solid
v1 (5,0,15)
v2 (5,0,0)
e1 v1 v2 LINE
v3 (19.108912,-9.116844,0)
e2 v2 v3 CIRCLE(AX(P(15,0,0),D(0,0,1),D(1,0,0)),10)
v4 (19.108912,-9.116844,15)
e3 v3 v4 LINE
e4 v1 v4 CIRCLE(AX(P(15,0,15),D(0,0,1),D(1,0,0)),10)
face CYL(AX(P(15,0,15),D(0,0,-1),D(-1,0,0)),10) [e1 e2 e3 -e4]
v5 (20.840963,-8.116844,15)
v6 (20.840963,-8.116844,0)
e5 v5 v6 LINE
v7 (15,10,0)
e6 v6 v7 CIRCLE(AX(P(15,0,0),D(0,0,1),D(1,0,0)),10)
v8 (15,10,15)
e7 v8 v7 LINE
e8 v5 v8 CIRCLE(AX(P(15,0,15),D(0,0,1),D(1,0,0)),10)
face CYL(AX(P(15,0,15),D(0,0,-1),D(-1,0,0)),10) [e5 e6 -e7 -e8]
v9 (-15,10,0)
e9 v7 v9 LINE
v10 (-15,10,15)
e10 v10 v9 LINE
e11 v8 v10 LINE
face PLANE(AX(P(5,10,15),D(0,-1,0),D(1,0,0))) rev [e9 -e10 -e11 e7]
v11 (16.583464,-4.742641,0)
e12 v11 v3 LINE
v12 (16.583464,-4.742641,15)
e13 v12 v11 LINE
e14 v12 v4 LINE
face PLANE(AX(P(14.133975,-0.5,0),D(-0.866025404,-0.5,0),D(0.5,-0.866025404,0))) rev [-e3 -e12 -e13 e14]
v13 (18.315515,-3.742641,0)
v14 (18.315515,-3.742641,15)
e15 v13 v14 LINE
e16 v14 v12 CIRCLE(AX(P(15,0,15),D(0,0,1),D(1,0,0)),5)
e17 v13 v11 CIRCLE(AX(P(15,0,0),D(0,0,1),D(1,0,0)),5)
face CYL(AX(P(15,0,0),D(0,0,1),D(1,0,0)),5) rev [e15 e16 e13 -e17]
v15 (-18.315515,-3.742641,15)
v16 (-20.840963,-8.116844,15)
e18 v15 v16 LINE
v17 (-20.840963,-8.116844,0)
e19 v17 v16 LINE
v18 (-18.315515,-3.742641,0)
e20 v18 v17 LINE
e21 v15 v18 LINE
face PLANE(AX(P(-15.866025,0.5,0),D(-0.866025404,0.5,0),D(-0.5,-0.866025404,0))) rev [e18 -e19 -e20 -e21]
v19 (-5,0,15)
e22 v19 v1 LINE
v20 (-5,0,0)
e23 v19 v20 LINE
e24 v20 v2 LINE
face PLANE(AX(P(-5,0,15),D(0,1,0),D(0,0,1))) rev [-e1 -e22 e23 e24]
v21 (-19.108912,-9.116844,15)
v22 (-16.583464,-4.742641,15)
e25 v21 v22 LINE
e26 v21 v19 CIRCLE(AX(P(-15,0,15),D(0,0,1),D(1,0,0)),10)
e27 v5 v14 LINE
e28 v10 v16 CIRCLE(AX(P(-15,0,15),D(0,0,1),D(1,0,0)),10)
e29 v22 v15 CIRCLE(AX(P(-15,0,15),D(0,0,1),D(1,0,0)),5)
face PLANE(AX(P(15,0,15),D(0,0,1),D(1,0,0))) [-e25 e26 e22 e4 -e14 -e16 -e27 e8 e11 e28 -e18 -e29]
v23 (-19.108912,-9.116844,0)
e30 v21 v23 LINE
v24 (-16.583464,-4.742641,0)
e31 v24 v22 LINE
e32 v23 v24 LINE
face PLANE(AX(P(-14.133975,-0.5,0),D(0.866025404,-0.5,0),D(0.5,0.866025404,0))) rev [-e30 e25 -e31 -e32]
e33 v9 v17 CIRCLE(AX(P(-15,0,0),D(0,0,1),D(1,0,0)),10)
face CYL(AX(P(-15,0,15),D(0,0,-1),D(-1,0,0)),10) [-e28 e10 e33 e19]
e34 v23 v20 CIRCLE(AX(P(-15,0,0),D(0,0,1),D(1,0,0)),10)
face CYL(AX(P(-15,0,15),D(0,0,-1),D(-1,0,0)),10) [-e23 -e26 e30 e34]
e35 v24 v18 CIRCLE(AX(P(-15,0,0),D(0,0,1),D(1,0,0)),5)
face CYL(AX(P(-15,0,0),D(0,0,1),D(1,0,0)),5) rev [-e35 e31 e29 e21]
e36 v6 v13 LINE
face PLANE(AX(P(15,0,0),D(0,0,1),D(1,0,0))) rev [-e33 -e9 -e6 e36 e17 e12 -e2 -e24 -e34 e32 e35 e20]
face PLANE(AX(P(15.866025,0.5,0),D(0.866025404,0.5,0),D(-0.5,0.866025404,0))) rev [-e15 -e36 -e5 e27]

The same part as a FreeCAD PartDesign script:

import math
import FreeCAD as App
import Part
import Sketcher

V = App.Vector
Q = App.Units.Quantity


def add_polygon(sketch, points):
    """Adds a closed chain of lines whose ends are joined by coincident constraints."""
    first, n = sketch.GeometryCount, len(points)
    for a, b in zip(points, points[1:] + points[:1]):
        sketch.addGeometry(Part.LineSegment(App.Vector(*a, 0), App.Vector(*b, 0)), False)
    for i in range(n):
        sketch.addConstraint(Sketcher.Constraint("Coincident", first + i, 2, first + (i + 1) % n, 1))

doc = App.newDocument("Part")
body = doc.addObject("PartDesign::Body", "Body")

# Sketch on XY plane
sketch1 = body.newObject("Sketcher::SketchObject", "Sketch")
sketch1.AttachmentSupport = (doc.getObject("XY_Plane"), [""])
sketch1.MapMode = "FlatFace"
sketch1.addGeometry(Part.ArcOfCircle(Part.Circle(V(-15, 0, 0), V(0, 0, 1), 10), math.radians(90), math.radians(360)), False)
sketch1.addGeometry(Part.LineSegment(V(-5, 0, 0), V(5, 0, 0)), False)
sketch1.addGeometry(Part.ArcOfCircle(Part.Circle(V(15, 0, 0), V(0, 0, 1), 10), math.radians(180), math.radians(450)), False)
sketch1.addGeometry(Part.LineSegment(V(15, 10, 0), V(-15, 10, 0)), False)
sketch1.addConstraint(Sketcher.Constraint("Coincident", 0, 2, 1, 1))
sketch1.addConstraint(Sketcher.Constraint("Coincident", 1, 2, 2, 1))
sketch1.addConstraint(Sketcher.Constraint("Tangent", 2, 2, 3, 1))
sketch1.addConstraint(Sketcher.Constraint("Tangent", 3, 2, 0, 1))
sketch1.addConstraint(Sketcher.Constraint("Horizontal", 1))
sketch1.addConstraint(Sketcher.Constraint("Horizontal", 3))
sketch1.addConstraint(Sketcher.Constraint("Equal", 0, 2))
sketch1.addConstraint(Sketcher.Constraint("Symmetric", 0, 3, 2, 3, -1, 1))
sketch1.addConstraint(Sketcher.Constraint("PointOnObject", 0, 2, -1))
sketch1.addConstraint(Sketcher.Constraint("Radius", 0, Q("10 mm")))
sketch1.addConstraint(Sketcher.Constraint("DistanceX", 1, 1, 1, 2, Q("10 mm")))
pad1 = body.newObject("PartDesign::Pad", "Pad")
pad1.Profile = sketch1
pad1.Length = 15

# Sketch on XY plane
sketch2 = body.newObject("Sketcher::SketchObject", "Sketch001")
sketch2.AttachmentSupport = (doc.getObject("XY_Plane"), [""])
sketch2.MapMode = "FlatFace"
sketch2.AttachmentOffset = App.Placement(V(0, 0, 15), App.Rotation())
sketch2.addGeometry(Part.Circle(V(-15, 0, 0), V(0, 0, 1), 5), False)
sketch2.addGeometry(Part.Circle(V(15, 0, 0), V(0, 0, 1), 5), False)
sketch2.addConstraint(Sketcher.Constraint("Equal", 0, 1))
sketch2.addConstraint(Sketcher.Constraint("Symmetric", 0, 3, 1, 3, -1, 1))
sketch2.addConstraint(Sketcher.Constraint("PointOnObject", 0, 3, -1))
sketch2.addConstraint(Sketcher.Constraint("Diameter", 0, Q("10 mm")))
sketch2.addConstraint(Sketcher.Constraint("DistanceX", 0, 3, -1, 1, Q("15 mm")))
pocket1 = body.newObject("PartDesign::Pocket", "Pocket")
pocket1.Profile = sketch2
pocket1.Type = "ThroughAll"

# Sketch on XY plane
sketch3 = body.newObject("Sketcher::SketchObject", "Sketch002")
sketch3.AttachmentSupport = (doc.getObject("XY_Plane"), [""])
sketch3.MapMode = "FlatFace"
sketch3.AttachmentOffset = App.Placement(V(0, 0, 15), App.Rotation())
add_polygon(sketch3, [(-14.1, -0.5), (-15.9, 0.5), (-20.9, -8.2), (-19.1, -9.2)])  # lines 0-3
add_polygon(sketch3, [(15.9, 0.5), (14.1, -0.5), (19.1, -9.2), (20.9, -8.2)])  # lines 4-7
sketch3.addConstraint(Sketcher.Constraint("Symmetric", 3, 2, 4, 2, -2))
sketch3.addConstraint(Sketcher.Constraint("Symmetric", 2, 2, 5, 2, -2))
sketch3.addConstraint(Sketcher.Constraint("Symmetric", 1, 2, 6, 2, -2))
sketch3.addConstraint(Sketcher.Constraint("Symmetric", 0, 2, 7, 2, -2))
sketch3.addConstraint(Sketcher.Constraint("Perpendicular", 0, 1))
sketch3.addConstraint(Sketcher.Constraint("Perpendicular", 1, 2))
sketch3.addConstraint(Sketcher.Constraint("Perpendicular", 2, 3))
sketch3.addConstraint(Sketcher.Constraint("Angle", 0, Q("150 deg")))
sketch3.addConstraint(Sketcher.Constraint("Distance", 0, Q("2 mm")))
sketch3.addConstraint(Sketcher.Constraint("Distance", 1, Q("10 mm")))
sketch3.addConstraint(Sketcher.Constraint("DistanceX", 0, 2, 4, 2, Q("30 mm")))
sketch3.addConstraint(Sketcher.Constraint("DistanceY", -1, 1, 0, 2, Q("0.5 mm")))
pocket2 = body.newObject("PartDesign::Pocket", "Pocket001")
pocket2.Profile = sketch3
pocket2.Type = "ThroughAll"

doc.recompute()
